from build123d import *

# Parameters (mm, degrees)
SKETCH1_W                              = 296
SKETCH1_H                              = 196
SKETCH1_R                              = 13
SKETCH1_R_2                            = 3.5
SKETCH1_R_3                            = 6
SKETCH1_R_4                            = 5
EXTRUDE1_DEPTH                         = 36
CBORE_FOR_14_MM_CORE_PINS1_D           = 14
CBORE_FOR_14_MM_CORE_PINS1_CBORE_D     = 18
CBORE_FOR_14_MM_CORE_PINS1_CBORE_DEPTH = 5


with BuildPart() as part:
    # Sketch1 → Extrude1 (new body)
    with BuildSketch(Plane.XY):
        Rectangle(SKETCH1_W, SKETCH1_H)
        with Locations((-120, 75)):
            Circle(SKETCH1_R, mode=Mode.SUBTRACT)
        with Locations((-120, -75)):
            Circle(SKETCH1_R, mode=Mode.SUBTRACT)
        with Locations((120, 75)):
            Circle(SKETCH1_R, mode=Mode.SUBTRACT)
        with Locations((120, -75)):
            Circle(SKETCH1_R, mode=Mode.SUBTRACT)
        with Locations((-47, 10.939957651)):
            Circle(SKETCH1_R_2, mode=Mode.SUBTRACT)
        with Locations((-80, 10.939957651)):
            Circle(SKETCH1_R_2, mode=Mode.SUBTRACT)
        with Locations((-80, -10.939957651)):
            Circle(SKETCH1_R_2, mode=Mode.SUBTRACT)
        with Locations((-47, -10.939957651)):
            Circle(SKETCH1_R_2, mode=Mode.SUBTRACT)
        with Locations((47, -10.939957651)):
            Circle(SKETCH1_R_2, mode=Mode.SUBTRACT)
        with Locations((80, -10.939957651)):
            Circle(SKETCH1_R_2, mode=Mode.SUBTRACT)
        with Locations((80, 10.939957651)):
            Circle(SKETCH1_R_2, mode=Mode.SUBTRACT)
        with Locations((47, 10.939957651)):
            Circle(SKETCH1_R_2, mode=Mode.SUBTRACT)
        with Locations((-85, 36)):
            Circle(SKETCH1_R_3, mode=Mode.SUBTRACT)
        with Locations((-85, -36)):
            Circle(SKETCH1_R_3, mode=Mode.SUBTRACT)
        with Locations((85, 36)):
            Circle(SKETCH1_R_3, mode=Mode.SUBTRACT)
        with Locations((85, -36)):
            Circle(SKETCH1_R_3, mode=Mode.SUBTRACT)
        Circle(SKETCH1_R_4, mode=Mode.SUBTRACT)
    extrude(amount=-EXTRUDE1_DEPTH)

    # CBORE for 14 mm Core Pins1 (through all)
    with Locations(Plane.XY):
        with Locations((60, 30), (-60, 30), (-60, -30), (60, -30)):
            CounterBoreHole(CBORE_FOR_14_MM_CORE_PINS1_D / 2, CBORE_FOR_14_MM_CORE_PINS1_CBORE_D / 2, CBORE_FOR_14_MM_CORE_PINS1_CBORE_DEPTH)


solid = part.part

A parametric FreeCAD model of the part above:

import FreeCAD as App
import Part
import Sketcher

V = App.Vector
Q = App.Units.Quantity


def add_polygon(sketch, points):
    """Adds a closed chain of lines whose ends are joined by coincident constraints."""
    first, n = sketch.GeometryCount, len(points)
    for a, b in zip(points, points[1:] + points[:1]):
        sketch.addGeometry(Part.LineSegment(App.Vector(*a, 0), App.Vector(*b, 0)), False)
    for i in range(n):
        sketch.addConstraint(Sketcher.Constraint("Coincident", first + i, 2, first + (i + 1) % n, 1))

doc = App.newDocument("Part")
body = doc.addObject("PartDesign::Body", "Body")

# Sketch on XY plane
sketch1 = body.newObject("Sketcher::SketchObject", "Sketch")
sketch1.AttachmentSupport = (doc.getObject("XY_Plane"), [""])
sketch1.MapMode = "FlatFace"
add_polygon(sketch1, [(-148, 98), (-148, -98), (148, -98), (148, 98)])  # lines 0-3
sketch1.addGeometry(Part.Circle(V(-120, -75, 0), V(0, 0, 1), 13), False)  # 4
sketch1.addGeometry(Part.Circle(V(-85, -36, 0), V(0, 0, 1), 6), False)  # 5
sketch1.addGeometry(Part.Circle(V(-80, -10.939958, 0), V(0, 0, 1), 3.5), False)  # 6
sketch1.addGeometry(Part.Circle(V(-47, -10.939958, 0), V(0, 0, 1), 3.5), False)  # 7
sketch1.addGeometry(Part.Circle(V(120, -75, 0), V(0, 0, 1), 13), False)  # 8
sketch1.addGeometry(Part.Circle(V(47, -10.939958, 0), V(0, 0, 1), 3.5), False)  # 9
sketch1.addGeometry(Part.Circle(V(85, -36, 0), V(0, 0, 1), 6), False)  # 10
sketch1.addGeometry(Part.Circle(V(80, -10.939958, 0), V(0, 0, 1), 3.5), False)  # 11
sketch1.addGeometry(Part.Circle(V(-80, 10.939958, 0), V(0, 0, 1), 3.5), False)  # 12
sketch1.addGeometry(Part.Circle(V(-85, 36, 0), V(0, 0, 1), 6), False)  # 13
sketch1.addGeometry(Part.Circle(V(-47, 10.939958, 0), V(0, 0, 1), 3.5), False)  # 14
sketch1.addGeometry(Part.Circle(V(-120, 75, 0), V(0, 0, 1), 13), False)  # 15
sketch1.addGeometry(Part.Circle(V(0, 0, 0), V(0, 0, 1), 5), False)  # 16
sketch1.addGeometry(Part.Circle(V(47, 10.939958, 0), V(0, 0, 1), 3.5), False)  # 17
sketch1.addGeometry(Part.Circle(V(80, 10.939958, 0), V(0, 0, 1), 3.5), False)  # 18
sketch1.addGeometry(Part.Circle(V(85, 36, 0), V(0, 0, 1), 6), False)  # 19
sketch1.addGeometry(Part.Circle(V(120, 75, 0), V(0, 0, 1), 13), False)  # 20
sketch1.addConstraint([
    Sketcher.Constraint("Vertical", 0),
    Sketcher.Constraint("Horizontal", 1),
    Sketcher.Constraint("Vertical", 2),
    Sketcher.Constraint("Horizontal", 3),
    Sketcher.Constraint("Coincident", 16, 3, -1, 1),
    Sketcher.Constraint("Equal", 6, 7),
    Sketcher.Constraint("Equal", 4, 8),
    Sketcher.Constraint("Equal", 7, 9),
    Sketcher.Constraint("Equal", 5, 10),
    Sketcher.Constraint("Equal", 9, 11),
    Sketcher.Constraint("Equal", 11, 12),
    Sketcher.Constraint("Equal", 10, 13),
    Sketcher.Constraint("Equal", 12, 14),
    Sketcher.Constraint("Equal", 8, 15),
    Sketcher.Constraint("Equal", 14, 17),
    Sketcher.Constraint("Equal", 17, 18),
    Sketcher.Constraint("Equal", 13, 19),
    Sketcher.Constraint("Equal", 15, 20),
    Sketcher.Constraint("Symmetric", 11, 3, 12, 3, -1, 1),
    Sketcher.Constraint("Symmetric", 10, 3, 13, 3, -1, 1),
    Sketcher.Constraint("Symmetric", 9, 3, 14, 3, -1, 1),
    Sketcher.Constraint("Symmetric", 8, 3, 15, 3, -1, 1),
    Sketcher.Constraint("Symmetric", 7, 3, 17, 3, -1, 1),
    Sketcher.Constraint("Symmetric", 6, 3, 18, 3, -1, 1),
    Sketcher.Constraint("Symmetric", 5, 3, 19, 3, -1, 1),
    Sketcher.Constraint("Symmetric", 4, 3, 20, 3, -1, 1),
    Sketcher.Constraint("Symmetric", 0, 2, 2, 2, -1, 1),
    Sketcher.Constraint("Symmetric", 4, 3, 8, 3, -2),
    Sketcher.Constraint("Symmetric", 7, 3, 9, 3, -2),
    Sketcher.Constraint("Symmetric", 5, 3, 10, 3, -2),
    Sketcher.Constraint("Symmetric", 6, 3, 11, 3, -2),
    Sketcher.Constraint("Horizontal", 6, 3, 7, 3),
    Sketcher.Constraint("Diameter", 4, Q("26 mm")),
    Sketcher.Constraint("Diameter", 5, Q("12 mm")),
    Sketcher.Constraint("Diameter", 6, Q("7 mm")),
    Sketcher.Constraint("Diameter", 16, Q("10 mm")),
    Sketcher.Constraint("DistanceX", 1, 1, 1, 2, Q("296 mm")),
    Sketcher.Constraint("DistanceY", 0, 2, 0, 1, Q("196 mm")),
    Sketcher.Constraint("DistanceX", 4, 3, -1, 1, Q("120 mm")),
    Sketcher.Constraint("DistanceY", 4, 3, -1, 1, Q("75 mm")),
    Sketcher.Constraint("DistanceX", 5, 3, -1, 1, Q("85 mm")),
    Sketcher.Constraint("DistanceY", 5, 3, -1, 1, Q("36 mm")),
    Sketcher.Constraint("DistanceX", 6, 3, -1, 1, Q("80 mm")),
    Sketcher.Constraint("DistanceX", 7, 3, -1, 1, Q("47 mm")),
    Sketcher.Constraint("DistanceY", 6, 3, -1, 1, Q("10.939958 mm")),
])
pad1 = body.newObject("PartDesign::Pad", "Pad")
pad1.Profile = sketch1
pad1.Length = 36
pad1.Reversed = True

# Sketch on XY plane
sketch2 = body.newObject("Sketcher::SketchObject", "Sketch001")
sketch2.AttachmentSupport = (doc.getObject("XY_Plane"), [""])
sketch2.MapMode = "FlatFace"
sketch2.addGeometry([
    Part.Circle(V(60, 30, 0), V(0, 0, 1), 7),
    Part.Circle(V(-60, 30, 0), V(0, 0, 1), 7),
    Part.Circle(V(-60, -30, 0), V(0, 0, 1), 7),
    Part.Circle(V(60, -30, 0), V(0, 0, 1), 7),
], False)
sketch2.addConstraint([
    Sketcher.Constraint("Equal", 0, 1),
    Sketcher.Constraint("Equal", 1, 2),
    Sketcher.Constraint("Equal", 2, 3),
    Sketcher.Constraint("Symmetric", 0, 3, 2, 3, -1, 1),
    Sketcher.Constraint("Symmetric", 1, 3, 3, 3, -1, 1),
    Sketcher.Constraint("Symmetric", 0, 3, 1, 3, -2),
    Sketcher.Constraint("Diameter", 0, Q("14 mm")),
    Sketcher.Constraint("DistanceX", -1, 1, 0, 3, Q("60 mm")),
    Sketcher.Constraint("DistanceY", -1, 1, 0, 3, Q("30 mm")),
])
doc.recompute()
hole = body.newObject("PartDesign::Hole", "Hole")
hole.Profile = sketch2
hole.ThreadType = "None"
hole.Diameter = 14
hole.DepthType = "ThroughAll"
hole.HoleCutType = "Counterbore"
hole.HoleCutDiameter = 18
hole.HoleCutDepth = 5

doc.recompute()
